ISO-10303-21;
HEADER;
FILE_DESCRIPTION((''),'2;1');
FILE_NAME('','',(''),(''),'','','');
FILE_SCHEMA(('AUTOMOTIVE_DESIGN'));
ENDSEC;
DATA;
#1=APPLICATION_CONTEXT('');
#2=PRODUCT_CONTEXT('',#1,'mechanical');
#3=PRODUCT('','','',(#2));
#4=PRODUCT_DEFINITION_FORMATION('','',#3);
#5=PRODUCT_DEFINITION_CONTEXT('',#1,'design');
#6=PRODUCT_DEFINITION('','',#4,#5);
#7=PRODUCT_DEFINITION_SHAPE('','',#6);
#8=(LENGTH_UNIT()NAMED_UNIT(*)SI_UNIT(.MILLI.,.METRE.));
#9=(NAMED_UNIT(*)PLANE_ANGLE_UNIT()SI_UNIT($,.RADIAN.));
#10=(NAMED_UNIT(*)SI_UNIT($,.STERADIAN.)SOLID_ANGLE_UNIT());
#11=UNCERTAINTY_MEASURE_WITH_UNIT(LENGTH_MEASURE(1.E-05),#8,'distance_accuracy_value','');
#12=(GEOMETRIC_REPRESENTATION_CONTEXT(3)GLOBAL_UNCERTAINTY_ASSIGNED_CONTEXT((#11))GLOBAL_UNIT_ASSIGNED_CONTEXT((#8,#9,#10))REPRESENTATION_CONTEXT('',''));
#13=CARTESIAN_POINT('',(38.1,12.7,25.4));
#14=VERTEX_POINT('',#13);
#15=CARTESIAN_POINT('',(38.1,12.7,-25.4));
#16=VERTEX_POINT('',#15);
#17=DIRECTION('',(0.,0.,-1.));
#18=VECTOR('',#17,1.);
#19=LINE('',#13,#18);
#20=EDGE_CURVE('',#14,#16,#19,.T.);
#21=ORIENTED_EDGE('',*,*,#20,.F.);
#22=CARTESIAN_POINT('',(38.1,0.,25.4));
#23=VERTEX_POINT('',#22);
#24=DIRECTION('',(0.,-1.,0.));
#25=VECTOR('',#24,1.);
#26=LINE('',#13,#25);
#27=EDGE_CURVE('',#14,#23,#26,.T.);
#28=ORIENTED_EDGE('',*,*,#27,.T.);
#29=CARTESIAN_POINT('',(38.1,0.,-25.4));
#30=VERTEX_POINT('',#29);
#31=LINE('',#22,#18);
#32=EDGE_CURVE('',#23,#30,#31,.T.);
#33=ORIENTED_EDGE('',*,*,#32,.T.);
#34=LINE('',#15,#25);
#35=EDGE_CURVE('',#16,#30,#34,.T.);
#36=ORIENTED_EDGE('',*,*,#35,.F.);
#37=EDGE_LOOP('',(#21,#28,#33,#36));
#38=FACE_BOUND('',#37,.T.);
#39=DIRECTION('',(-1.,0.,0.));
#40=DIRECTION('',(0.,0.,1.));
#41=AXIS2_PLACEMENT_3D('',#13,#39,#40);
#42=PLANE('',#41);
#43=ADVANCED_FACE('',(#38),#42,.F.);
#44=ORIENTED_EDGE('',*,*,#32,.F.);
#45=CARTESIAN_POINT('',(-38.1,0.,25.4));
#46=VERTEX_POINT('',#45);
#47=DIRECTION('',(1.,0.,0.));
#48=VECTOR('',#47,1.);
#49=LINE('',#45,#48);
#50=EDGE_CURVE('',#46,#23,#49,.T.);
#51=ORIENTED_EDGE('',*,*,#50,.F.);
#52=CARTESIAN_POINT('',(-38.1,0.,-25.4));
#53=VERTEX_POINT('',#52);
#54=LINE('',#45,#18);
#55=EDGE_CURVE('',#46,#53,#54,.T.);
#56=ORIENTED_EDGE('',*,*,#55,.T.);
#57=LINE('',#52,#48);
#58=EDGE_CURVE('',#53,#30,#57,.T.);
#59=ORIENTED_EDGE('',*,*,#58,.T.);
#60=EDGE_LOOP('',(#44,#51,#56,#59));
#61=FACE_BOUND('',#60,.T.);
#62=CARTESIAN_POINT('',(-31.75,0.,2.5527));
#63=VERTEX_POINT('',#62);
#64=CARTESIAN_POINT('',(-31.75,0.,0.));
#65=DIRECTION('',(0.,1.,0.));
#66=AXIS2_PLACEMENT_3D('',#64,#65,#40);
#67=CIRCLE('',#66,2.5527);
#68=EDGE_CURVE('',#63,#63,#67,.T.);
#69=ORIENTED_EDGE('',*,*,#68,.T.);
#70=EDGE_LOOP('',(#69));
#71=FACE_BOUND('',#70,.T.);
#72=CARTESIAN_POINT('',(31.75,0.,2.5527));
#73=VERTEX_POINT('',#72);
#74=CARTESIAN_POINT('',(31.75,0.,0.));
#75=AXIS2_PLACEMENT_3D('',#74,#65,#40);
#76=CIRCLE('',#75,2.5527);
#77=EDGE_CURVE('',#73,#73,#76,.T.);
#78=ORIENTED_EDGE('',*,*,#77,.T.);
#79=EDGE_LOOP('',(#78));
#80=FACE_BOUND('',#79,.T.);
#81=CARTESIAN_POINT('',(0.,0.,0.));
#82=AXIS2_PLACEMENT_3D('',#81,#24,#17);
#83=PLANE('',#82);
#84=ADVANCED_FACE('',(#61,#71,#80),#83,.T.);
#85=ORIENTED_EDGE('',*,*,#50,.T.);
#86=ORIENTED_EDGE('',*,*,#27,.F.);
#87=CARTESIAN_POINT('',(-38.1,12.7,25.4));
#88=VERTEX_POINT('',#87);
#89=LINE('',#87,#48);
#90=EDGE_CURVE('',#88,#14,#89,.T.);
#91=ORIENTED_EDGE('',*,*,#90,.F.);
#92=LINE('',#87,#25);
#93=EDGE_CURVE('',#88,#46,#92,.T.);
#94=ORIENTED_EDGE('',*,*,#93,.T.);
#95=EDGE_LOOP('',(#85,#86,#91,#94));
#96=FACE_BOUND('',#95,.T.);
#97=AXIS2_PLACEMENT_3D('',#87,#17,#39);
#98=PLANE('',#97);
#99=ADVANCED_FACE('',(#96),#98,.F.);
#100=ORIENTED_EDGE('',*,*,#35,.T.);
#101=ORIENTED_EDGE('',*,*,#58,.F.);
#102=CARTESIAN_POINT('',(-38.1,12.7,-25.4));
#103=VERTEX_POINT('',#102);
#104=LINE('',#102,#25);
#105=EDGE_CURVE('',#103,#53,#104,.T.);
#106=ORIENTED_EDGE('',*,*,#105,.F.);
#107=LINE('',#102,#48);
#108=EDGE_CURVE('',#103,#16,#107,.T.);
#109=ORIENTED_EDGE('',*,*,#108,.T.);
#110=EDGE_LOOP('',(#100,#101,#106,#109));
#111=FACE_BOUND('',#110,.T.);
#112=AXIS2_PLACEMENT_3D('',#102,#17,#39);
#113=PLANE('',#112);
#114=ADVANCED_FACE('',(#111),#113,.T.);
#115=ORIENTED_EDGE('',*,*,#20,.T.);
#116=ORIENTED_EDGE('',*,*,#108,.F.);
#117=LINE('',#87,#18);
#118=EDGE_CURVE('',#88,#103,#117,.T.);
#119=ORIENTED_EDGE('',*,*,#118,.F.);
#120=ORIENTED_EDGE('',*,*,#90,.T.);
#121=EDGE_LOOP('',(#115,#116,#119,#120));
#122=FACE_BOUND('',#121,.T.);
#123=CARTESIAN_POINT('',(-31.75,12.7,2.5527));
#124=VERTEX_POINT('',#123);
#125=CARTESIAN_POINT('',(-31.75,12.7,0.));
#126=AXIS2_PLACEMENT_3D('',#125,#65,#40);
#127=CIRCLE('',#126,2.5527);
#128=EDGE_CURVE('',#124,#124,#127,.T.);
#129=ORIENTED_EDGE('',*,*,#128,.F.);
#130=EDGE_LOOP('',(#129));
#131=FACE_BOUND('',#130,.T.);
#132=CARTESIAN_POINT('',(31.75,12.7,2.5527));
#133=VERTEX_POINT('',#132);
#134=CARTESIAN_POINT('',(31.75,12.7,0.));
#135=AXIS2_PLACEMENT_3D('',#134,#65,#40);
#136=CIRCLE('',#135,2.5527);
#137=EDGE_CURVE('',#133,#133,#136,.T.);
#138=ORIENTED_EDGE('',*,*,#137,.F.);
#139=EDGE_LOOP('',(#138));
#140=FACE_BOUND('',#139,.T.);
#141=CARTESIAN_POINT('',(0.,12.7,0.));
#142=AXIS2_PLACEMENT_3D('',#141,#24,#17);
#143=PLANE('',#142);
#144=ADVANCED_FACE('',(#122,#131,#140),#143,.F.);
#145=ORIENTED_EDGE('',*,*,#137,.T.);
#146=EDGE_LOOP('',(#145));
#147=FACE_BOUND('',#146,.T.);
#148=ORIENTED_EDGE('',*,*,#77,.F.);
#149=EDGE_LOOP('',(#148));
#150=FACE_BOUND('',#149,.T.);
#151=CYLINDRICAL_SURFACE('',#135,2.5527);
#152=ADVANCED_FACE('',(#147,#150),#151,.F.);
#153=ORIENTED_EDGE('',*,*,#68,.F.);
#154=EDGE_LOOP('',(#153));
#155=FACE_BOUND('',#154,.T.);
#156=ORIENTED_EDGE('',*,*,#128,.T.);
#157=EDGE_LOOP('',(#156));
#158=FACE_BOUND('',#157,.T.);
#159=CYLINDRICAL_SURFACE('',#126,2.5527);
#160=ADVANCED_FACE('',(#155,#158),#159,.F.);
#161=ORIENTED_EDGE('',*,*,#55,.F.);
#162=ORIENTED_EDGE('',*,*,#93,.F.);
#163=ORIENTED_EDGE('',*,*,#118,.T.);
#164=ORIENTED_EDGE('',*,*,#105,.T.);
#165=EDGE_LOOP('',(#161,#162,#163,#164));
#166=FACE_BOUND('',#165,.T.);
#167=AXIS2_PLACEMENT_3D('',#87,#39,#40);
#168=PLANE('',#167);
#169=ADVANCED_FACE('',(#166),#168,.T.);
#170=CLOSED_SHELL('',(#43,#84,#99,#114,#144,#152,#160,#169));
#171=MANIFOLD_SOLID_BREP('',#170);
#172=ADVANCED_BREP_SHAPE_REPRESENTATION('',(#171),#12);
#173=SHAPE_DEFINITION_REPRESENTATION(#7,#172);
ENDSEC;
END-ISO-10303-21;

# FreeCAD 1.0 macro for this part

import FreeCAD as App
import Part
import Sketcher
Q = App.Units.Quantity

doc = App.newDocument("Part")
params = doc.addObject("Spreadsheet::Sheet", "Params")
for row, (alias, value) in enumerate([
    ("sketch1_width", "3 in"),
    ("sketch1_height", "2 in"),
    ("pad1_length", "0.5 in"),
    ("sketch2_diameter", "0.201 in"),
    ("hole_diameter", "0.201 in"),
], start=1):
    params.set(f"A{row}", alias)
    params.set(f"B{row}", "=" + value)
    params.setAlias(f"B{row}", alias)

body = doc.addObject("PartDesign::Body", "Body")

sketch1 = doc.addObject("Sketcher::SketchObject", "Sketch")
body.addObject(sketch1)
sketch1.AttachmentSupport = (doc.XZ_Plane, [""])
sketch1.MapMode = "FlatFace"
sketch1.addGeometry(Part.LineSegment(App.Vector(-38, -25, 0), App.Vector(-38, 25, 0)), False)
sketch1.addGeometry(Part.LineSegment(App.Vector(-38, 25, 0), App.Vector(38, 25, 0)), False)
sketch1.addGeometry(Part.LineSegment(App.Vector(38, 25, 0), App.Vector(38, -25, 0)), False)
sketch1.addGeometry(Part.LineSegment(App.Vector(38, -25, 0), App.Vector(-38, -25, 0)), False)
sketch1.addConstraint(Sketcher.Constraint("Coincident", 0, 2, 1, 1))
sketch1.addConstraint(Sketcher.Constraint("Coincident", 1, 2, 2, 1))
sketch1.addConstraint(Sketcher.Constraint("Coincident", 2, 2, 3, 1))
sketch1.addConstraint(Sketcher.Constraint("Coincident", 3, 2, 0, 1))
sketch1.addConstraint(Sketcher.Constraint("Vertical", 0))
sketch1.addConstraint(Sketcher.Constraint("Horizontal", 1))
sketch1.addConstraint(Sketcher.Constraint("Vertical", 2))
sketch1.addConstraint(Sketcher.Constraint("Horizontal", 3))
sketch1.addConstraint(Sketcher.Constraint("Symmetric", 0, 2, 2, 2, -1, 1))
sketch1.addConstraint(Sketcher.Constraint("DistanceX", 1, 1, 1, 2, Q("3 in")))
sketch1.addConstraint(Sketcher.Constraint("DistanceY", 0, 1, 0, 2, Q("2 in")))
sketch1.setExpression("Constraints[9]", "Params.sketch1_width")
sketch1.setExpression("Constraints[10]", "Params.sketch1_height")
pad1 = doc.addObject("PartDesign::Pad", "Pad")
body.addObject(pad1)
pad1.Profile = sketch1
pad1.setExpression("Length", "Params.pad1_length")
pad1.Reversed = True

sketch2 = doc.addObject("Sketcher::SketchObject", "Sketch001")
body.addObject(sketch2)
sketch2.AttachmentSupport = (doc.XZ_Plane, [""])
sketch2.MapMode = "FlatFace"
sketch2.AttachmentOffset = App.Placement(App.Vector(0, 0, -0.5 * 25.4), App.Rotation())
sketch2.addGeometry(Part.Circle(App.Vector(-31.8, 0, 0), App.Vector(0, 0, 1), 2.6), False)
sketch2.addGeometry(Part.Circle(App.Vector(31.8, 0, 0), App.Vector(0, 0, 1), 2.6), False)
sketch2.addConstraint(Sketcher.Constraint("Equal", 0, 1))
sketch2.addConstraint(Sketcher.Constraint("Symmetric", 0, 3, 1, 3, -1, 1))
sketch2.addConstraint(Sketcher.Constraint("PointOnObject", 0, 3, -1))
sketch2.addConstraint(Sketcher.Constraint("Diameter", 0, Q("0.201 in")))
sketch2.addConstraint(Sketcher.Constraint("DistanceX", 0, 3, 1, 3, Q("2.5 in")))
sketch2.setExpression("Constraints[3]", "Params.sketch2_diameter")
doc.recompute()
hole = doc.addObject("PartDesign::Hole", "Hole")
body.addObject(hole)
hole.Profile = sketch2
hole.ThreadType = "None"
hole.setExpression("Diameter", "Params.hole_diameter")
hole.DepthType = "ThroughAll"
hole.Reversed = True

doc.recompute()
